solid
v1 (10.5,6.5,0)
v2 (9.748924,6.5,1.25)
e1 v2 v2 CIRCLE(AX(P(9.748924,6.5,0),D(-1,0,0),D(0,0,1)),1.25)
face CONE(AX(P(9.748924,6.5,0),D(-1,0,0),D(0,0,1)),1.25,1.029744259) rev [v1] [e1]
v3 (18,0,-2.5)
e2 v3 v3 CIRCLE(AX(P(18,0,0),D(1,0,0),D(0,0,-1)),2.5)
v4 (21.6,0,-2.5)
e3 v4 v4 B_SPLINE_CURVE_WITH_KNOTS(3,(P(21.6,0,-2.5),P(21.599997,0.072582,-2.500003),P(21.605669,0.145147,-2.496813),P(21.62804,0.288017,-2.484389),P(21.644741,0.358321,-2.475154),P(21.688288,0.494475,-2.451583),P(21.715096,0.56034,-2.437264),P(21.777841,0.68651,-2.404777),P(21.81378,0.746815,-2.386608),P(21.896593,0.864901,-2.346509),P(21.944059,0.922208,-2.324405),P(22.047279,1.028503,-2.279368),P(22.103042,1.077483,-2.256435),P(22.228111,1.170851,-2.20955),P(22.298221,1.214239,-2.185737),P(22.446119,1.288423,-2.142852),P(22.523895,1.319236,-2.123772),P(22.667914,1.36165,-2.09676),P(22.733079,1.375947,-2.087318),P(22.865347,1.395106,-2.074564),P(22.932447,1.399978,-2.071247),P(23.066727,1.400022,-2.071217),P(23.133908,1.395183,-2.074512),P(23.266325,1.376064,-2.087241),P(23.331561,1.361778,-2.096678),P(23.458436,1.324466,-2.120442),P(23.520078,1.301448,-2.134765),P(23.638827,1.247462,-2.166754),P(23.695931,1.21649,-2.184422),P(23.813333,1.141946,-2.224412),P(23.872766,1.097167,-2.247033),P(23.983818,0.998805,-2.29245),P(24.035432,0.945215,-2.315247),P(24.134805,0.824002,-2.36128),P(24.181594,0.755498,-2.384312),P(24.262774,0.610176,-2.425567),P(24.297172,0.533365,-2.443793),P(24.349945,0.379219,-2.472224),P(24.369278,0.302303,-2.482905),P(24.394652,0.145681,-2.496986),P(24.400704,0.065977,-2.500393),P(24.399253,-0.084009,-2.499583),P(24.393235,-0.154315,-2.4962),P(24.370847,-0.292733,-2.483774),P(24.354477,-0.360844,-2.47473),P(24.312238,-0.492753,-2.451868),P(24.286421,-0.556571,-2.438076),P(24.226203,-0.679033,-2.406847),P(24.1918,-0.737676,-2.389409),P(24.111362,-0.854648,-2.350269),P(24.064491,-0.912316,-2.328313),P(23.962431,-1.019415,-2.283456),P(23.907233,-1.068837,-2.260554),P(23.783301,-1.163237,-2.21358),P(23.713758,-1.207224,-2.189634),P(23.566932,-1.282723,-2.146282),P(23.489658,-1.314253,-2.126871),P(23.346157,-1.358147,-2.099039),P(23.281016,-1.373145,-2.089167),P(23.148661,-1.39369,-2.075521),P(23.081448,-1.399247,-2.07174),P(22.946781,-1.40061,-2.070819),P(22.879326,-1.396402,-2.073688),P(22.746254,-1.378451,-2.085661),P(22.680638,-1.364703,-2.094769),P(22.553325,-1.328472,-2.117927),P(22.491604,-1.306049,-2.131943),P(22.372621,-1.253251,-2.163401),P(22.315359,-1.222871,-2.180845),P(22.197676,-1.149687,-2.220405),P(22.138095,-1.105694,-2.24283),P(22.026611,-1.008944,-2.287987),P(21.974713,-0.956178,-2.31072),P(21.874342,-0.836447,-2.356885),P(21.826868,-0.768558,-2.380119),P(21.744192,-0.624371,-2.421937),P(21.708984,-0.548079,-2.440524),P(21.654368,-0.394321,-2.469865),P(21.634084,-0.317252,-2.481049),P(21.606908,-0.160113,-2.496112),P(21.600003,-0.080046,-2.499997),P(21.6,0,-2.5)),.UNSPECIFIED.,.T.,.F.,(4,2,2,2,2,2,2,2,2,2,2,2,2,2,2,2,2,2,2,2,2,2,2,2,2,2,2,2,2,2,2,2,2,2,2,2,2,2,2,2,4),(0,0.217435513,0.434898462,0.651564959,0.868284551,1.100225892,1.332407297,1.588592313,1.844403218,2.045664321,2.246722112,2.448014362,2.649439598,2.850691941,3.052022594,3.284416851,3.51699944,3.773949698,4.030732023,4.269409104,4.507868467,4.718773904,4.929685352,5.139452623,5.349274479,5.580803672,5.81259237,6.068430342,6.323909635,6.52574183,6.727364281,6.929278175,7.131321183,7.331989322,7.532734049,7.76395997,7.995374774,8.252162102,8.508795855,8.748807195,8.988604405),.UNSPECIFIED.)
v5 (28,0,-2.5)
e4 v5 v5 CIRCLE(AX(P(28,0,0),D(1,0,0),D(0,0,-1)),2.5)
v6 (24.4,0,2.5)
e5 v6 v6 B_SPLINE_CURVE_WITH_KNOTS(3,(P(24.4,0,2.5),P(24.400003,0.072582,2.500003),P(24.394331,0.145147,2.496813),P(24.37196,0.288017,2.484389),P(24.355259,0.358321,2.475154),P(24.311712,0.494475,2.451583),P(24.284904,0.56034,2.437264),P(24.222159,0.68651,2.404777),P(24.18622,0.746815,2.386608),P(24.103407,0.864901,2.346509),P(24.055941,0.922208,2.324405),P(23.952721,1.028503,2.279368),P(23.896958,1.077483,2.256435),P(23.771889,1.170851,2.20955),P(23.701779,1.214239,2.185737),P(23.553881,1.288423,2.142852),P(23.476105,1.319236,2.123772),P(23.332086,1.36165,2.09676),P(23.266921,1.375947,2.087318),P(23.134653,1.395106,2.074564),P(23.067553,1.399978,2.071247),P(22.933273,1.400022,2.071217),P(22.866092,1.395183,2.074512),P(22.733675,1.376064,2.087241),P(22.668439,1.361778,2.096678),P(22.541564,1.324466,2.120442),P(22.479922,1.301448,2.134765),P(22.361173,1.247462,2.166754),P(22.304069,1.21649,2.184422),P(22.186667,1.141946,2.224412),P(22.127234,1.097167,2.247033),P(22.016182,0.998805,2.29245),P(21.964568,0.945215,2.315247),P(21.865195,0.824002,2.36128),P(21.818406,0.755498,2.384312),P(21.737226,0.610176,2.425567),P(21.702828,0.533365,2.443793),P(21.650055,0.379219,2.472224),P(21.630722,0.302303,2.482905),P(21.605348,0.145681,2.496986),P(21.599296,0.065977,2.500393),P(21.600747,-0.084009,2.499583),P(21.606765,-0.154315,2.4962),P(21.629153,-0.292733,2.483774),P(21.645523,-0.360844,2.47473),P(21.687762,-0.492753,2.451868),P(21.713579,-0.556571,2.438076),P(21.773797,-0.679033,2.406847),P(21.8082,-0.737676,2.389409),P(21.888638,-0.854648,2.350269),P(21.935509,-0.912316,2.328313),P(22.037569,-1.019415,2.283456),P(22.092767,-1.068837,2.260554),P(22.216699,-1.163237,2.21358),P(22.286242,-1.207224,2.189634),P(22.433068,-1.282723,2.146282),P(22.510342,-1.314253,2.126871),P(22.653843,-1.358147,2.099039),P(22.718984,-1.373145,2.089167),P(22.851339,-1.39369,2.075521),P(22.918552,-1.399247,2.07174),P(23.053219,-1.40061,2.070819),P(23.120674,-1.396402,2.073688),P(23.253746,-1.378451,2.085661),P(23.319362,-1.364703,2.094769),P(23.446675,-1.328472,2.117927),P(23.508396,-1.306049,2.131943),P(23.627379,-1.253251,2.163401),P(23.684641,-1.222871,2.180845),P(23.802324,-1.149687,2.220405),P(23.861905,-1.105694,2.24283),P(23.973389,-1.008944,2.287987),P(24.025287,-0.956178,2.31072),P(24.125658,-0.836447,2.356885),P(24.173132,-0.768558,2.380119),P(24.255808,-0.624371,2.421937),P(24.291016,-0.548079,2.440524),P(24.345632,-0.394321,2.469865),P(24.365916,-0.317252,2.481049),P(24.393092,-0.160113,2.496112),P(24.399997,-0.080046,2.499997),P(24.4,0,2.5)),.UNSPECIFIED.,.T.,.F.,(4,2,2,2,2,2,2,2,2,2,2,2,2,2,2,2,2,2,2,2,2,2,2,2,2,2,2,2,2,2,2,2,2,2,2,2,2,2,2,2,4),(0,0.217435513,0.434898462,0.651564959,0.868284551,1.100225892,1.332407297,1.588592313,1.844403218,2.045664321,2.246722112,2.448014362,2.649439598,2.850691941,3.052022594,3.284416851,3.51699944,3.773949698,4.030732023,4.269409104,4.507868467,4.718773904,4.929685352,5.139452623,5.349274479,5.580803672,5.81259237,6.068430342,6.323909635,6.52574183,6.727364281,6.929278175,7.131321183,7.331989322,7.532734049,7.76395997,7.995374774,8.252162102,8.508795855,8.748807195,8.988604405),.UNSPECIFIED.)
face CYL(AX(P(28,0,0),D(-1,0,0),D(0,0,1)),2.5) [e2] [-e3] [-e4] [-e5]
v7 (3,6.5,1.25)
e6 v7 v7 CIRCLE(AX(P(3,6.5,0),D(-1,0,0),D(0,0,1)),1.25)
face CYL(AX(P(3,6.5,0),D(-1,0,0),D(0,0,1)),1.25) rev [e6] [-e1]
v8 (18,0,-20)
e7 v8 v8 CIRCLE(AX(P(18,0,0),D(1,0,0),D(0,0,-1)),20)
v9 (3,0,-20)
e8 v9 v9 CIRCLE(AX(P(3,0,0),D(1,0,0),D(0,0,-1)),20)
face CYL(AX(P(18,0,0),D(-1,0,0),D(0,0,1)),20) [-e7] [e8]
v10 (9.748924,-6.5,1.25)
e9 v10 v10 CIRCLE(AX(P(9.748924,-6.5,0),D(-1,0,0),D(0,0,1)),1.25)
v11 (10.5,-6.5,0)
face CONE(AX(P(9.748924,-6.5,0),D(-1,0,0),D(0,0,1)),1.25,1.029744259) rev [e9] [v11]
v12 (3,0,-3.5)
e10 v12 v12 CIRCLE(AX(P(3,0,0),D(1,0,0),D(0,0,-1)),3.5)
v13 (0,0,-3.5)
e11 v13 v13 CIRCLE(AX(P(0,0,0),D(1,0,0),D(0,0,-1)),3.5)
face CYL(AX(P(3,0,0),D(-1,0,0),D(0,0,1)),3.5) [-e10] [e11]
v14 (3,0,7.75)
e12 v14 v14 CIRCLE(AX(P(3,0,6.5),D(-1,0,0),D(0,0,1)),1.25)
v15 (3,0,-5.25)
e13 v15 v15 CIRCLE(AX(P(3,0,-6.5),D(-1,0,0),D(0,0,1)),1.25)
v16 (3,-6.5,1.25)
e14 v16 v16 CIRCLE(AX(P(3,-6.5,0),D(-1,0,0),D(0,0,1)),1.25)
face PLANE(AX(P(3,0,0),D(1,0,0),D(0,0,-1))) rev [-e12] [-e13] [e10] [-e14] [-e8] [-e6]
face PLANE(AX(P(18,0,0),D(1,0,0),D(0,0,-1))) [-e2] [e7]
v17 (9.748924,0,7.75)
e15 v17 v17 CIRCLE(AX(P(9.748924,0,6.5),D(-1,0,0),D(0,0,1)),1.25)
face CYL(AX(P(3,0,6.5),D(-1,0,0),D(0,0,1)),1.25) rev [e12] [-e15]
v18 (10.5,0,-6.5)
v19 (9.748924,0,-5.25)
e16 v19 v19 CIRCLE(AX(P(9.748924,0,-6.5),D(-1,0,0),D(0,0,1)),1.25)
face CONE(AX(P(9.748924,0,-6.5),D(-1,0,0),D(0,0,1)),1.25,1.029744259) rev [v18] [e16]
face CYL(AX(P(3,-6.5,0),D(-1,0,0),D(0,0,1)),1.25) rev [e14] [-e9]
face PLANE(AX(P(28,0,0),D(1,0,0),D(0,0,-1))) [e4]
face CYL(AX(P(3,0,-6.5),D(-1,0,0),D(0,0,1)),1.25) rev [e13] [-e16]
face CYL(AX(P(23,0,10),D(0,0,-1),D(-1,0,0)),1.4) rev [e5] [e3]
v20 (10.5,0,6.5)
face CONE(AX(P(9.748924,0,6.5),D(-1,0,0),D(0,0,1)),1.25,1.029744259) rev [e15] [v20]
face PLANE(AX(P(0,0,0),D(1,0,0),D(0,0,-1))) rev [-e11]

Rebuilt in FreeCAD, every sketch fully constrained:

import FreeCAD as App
import Part
import Sketcher

V = App.Vector
Q = App.Units.Quantity

doc = App.newDocument("Part")
body = doc.addObject("PartDesign::Body", "Body")

# Sketch on YZ plane
sketch1 = body.newObject("Sketcher::SketchObject", "Sketch")
sketch1.AttachmentSupport = (doc.getObject("YZ_Plane"), [""])
sketch1.MapMode = "FlatFace"
sketch1.addGeometry(Part.Circle(V(0, 0, 0), V(0, 0, 1), 3.5), False)
sketch1.addConstraint(Sketcher.Constraint("Coincident", 0, 3, -1, 1))
sketch1.addConstraint(Sketcher.Constraint("Diameter", 0, Q("7 mm")))
pad1 = body.newObject("PartDesign::Pad", "Pad")
pad1.Profile = sketch1
pad1.Length = 3

# Sketch on YZ plane
sketch2 = body.newObject("Sketcher::SketchObject", "Sketch001")
sketch2.AttachmentSupport = (doc.getObject("YZ_Plane"), [""])
sketch2.MapMode = "FlatFace"
sketch2.AttachmentOffset = App.Placement(V(0, 0, 3), App.Rotation())
sketch2.addGeometry(Part.Circle(V(0, 0, 0), V(0, 0, 1), 20), False)
sketch2.addConstraint(Sketcher.Constraint("Coincident", 0, 3, -1, 1))
sketch2.addConstraint(Sketcher.Constraint("Diameter", 0, Q("40 mm")))
pad2 = body.newObject("PartDesign::Pad", "Pad001")
pad2.Profile = sketch2
pad2.Length = 15

# Sketch on YZ plane
sketch3 = body.newObject("Sketcher::SketchObject", "Sketch002")
sketch3.AttachmentSupport = (doc.getObject("YZ_Plane"), [""])
sketch3.MapMode = "FlatFace"
sketch3.AttachmentOffset = App.Placement(V(0, 0, 18), App.Rotation())
sketch3.addGeometry(Part.Circle(V(0, 0, 0), V(0, 0, 1), 2.5), False)
sketch3.addConstraint(Sketcher.Constraint("Coincident", 0, 3, -1, 1))
sketch3.addConstraint(Sketcher.Constraint("Diameter", 0, Q("5 mm")))
pad3 = body.newObject("PartDesign::Pad", "Pad002")
pad3.Profile = sketch3
pad3.Length = 10

# Sketch on XY plane
sketch4 = body.newObject("Sketcher::SketchObject", "Sketch003")
sketch4.AttachmentSupport = (doc.getObject("XY_Plane"), [""])
sketch4.MapMode = "FlatFace"
sketch4.addGeometry(Part.Circle(V(23, 0, 0), V(0, 0, 1), 1.4), False)
sketch4.addConstraint(Sketcher.Constraint("PointOnObject", 0, 3, -1))
sketch4.addConstraint(Sketcher.Constraint("Diameter", 0, Q("2.8 mm")))
sketch4.addConstraint(Sketcher.Constraint("DistanceX", -1, 1, 0, 3, Q("23 mm")))
pocket1 = body.newObject("PartDesign::Pocket", "Pocket")
pocket1.Profile = sketch4
pocket1.Type = "ThroughAll"
pocket1.Midplane = True

# Sketch on YZ plane
sketch5 = body.newObject("Sketcher::SketchObject", "Sketch004")
sketch5.AttachmentSupport = (doc.getObject("YZ_Plane"), [""])
sketch5.MapMode = "FlatFace"
sketch5.AttachmentOffset = App.Placement(V(0, 0, 3), App.Rotation())
sketch5.addGeometry(Part.Circle(V(0, 6.5, 0), V(0, 0, 1), 1.2), False)
sketch5.addGeometry(Part.Circle(V(-6.5, 0, 0), V(0, 0, 1), 1.2), False)
sketch5.addGeometry(Part.Circle(V(0, -6.5, 0), V(0, 0, 1), 1.2), False)
sketch5.addGeometry(Part.Circle(V(6.5, 0, 0), V(0, 0, 1), 1.2), False)
sketch5.addConstraint(Sketcher.Constraint("Equal", 0, 1))
sketch5.addConstraint(Sketcher.Constraint("Equal", 1, 2))
sketch5.addConstraint(Sketcher.Constraint("Equal", 2, 3))
sketch5.addConstraint(Sketcher.Constraint("Symmetric", 0, 3, 2, 3, -1, 1))
sketch5.addConstraint(Sketcher.Constraint("Symmetric", 1, 3, 3, 3, -1, 1))
sketch5.addConstraint(Sketcher.Constraint("PointOnObject", 0, 3, -2))
sketch5.addConstraint(Sketcher.Constraint("PointOnObject", 1, 3, -1))
sketch5.addConstraint(Sketcher.Constraint("Diameter", 0, Q("2.5 mm")))
sketch5.addConstraint(Sketcher.Constraint("DistanceY", 2, 3, 0, 3, Q("13 mm")))
sketch5.addConstraint(Sketcher.Constraint("DistanceX", 1, 3, 3, 3, Q("13 mm")))
doc.recompute()
hole = body.newObject("PartDesign::Hole", "Hole")
hole.Profile = sketch5
hole.ThreadType = "None"
hole.Diameter = 2.5
hole.DepthType = "Dimension"
hole.Depth = 6.748924
hole.DrillPoint = "Angled"
hole.DrillPointAngle = 118
hole.Reversed = True

doc.recompute()
